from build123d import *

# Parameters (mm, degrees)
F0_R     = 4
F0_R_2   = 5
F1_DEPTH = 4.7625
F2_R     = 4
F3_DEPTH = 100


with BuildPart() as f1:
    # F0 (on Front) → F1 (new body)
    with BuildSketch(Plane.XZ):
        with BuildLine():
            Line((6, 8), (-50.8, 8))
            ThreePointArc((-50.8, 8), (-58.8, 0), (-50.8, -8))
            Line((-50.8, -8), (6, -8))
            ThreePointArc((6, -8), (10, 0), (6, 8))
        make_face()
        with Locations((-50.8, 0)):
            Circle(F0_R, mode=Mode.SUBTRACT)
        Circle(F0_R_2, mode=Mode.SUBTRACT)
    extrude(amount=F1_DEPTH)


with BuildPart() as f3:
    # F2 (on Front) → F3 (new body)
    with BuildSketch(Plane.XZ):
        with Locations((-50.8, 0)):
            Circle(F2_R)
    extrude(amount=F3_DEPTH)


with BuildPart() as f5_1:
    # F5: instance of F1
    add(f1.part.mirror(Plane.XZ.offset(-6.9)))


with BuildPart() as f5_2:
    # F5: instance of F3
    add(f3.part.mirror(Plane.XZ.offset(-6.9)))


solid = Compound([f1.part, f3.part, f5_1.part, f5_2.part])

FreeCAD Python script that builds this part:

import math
import FreeCAD as App
import Part
import Sketcher
from FreeCAD import Vector

doc = App.newDocument("Part")
body = doc.addObject("PartDesign::Body", "Body")

# Sketch on XZ plane
sketch1 = doc.addObject("Sketcher::SketchObject", "Sketch")
body.addObject(sketch1)
sketch1.AttachmentSupport = (doc.XZ_Plane, [""])
sketch1.MapMode = "FlatFace"
sketch1.addGeometry([
    Part.LineSegment(Vector(6, 8, 0), Vector(-50.8, 8, 0)),  # 0
    Part.ArcOfCircle(Part.Circle(Vector(-50.8, 0, 0), Vector(0, 0, 1), 8), math.radians(90), math.radians(270)),  # 1
    Part.LineSegment(Vector(-50.8, -8, 0), Vector(6, -8, 0)),  # 2
    Part.ArcOfCircle(Part.Circle(Vector(0, 0, 0), Vector(0, 0, 1), 10), math.radians(-53), math.radians(53)),  # 3
    Part.Circle(Vector(-50.8, 0, 0), Vector(0, 0, 1), 4),  # 4
    Part.Circle(Vector(0, 0, 0), Vector(0, 0, 1), 5),  # 5
], False)
sketch1.addConstraint([
    Sketcher.Constraint("Tangent", 0, 2, 1, 1),
    Sketcher.Constraint("Tangent", 1, 2, 2, 1),
    Sketcher.Constraint("Coincident", 2, 2, 3, 1),
    Sketcher.Constraint("Coincident", 3, 2, 0, 1),
    Sketcher.Constraint("Horizontal", 0),
    Sketcher.Constraint("Horizontal", 2),
    Sketcher.Constraint("Coincident", 3, 3, -1, 1),
    Sketcher.Constraint("Coincident", 5, 3, -1, 1),
    Sketcher.Constraint("Coincident", 4, 3, 1, 3),
    Sketcher.Constraint("PointOnObject", 1, 3, -1),
    Sketcher.Constraint("Diameter", 4, 8.0),
    Sketcher.Constraint("Diameter", 5, 10.0),
    Sketcher.Constraint("Radius", 1, 8.0),
    Sketcher.Constraint("Radius", 3, 10.0),
    Sketcher.Constraint("DistanceX", 0, 2, 0, 1, 56.8),
])
pad1 = doc.addObject("PartDesign::Pad", "Pad")
body.addObject(pad1)
pad1.Profile = sketch1
pad1.Length = 4.7625
body2 = doc.addObject("PartDesign::Body", "Body001")

# Sketch on XZ plane
sketch2 = doc.addObject("Sketcher::SketchObject", "Sketch001")
body2.addObject(sketch2)
sketch2.AttachmentSupport = (doc.getObject("XZ_Plane001"), [""])
sketch2.MapMode = "FlatFace"
sketch2.addGeometry(Part.Circle(Vector(-50.8, 0, 0), Vector(0, 0, 1), 4), False)
sketch2.addConstraint([
    Sketcher.Constraint("PointOnObject", 0, 3, -1),
    Sketcher.Constraint("Diameter", 0, 8.0),
    Sketcher.Constraint("DistanceX", 0, 3, -1, 1, 50.8),
])
pad2 = doc.addObject("PartDesign::Pad", "Pad001")
body2.addObject(pad2)
pad2.Profile = sketch2
pad2.Length = 100
body3 = doc.addObject("PartDesign::Body", "Body002")
doc.recompute()

mirroring = doc.addObject("Part::Mirroring", "Mirroring")
mirroring.Source = body
mirroring.Base = Vector(0, 6.9, 0)
mirroring.Normal = Vector(0, -1, 0)
body3.BaseFeature = mirroring
doc.recompute()
body4 = doc.addObject("PartDesign::Body", "Body003")
doc.recompute()

mirroring2 = doc.addObject("Part::Mirroring", "Mirroring001")
mirroring2.Source = body2
mirroring2.Base = Vector(0, 6.9, 0)
mirroring2.Normal = Vector(0, -1, 0)
body4.BaseFeature = mirroring2
doc.recompute()
mirroring.Visibility = False
mirroring2.Visibility = False

doc.recompute()
